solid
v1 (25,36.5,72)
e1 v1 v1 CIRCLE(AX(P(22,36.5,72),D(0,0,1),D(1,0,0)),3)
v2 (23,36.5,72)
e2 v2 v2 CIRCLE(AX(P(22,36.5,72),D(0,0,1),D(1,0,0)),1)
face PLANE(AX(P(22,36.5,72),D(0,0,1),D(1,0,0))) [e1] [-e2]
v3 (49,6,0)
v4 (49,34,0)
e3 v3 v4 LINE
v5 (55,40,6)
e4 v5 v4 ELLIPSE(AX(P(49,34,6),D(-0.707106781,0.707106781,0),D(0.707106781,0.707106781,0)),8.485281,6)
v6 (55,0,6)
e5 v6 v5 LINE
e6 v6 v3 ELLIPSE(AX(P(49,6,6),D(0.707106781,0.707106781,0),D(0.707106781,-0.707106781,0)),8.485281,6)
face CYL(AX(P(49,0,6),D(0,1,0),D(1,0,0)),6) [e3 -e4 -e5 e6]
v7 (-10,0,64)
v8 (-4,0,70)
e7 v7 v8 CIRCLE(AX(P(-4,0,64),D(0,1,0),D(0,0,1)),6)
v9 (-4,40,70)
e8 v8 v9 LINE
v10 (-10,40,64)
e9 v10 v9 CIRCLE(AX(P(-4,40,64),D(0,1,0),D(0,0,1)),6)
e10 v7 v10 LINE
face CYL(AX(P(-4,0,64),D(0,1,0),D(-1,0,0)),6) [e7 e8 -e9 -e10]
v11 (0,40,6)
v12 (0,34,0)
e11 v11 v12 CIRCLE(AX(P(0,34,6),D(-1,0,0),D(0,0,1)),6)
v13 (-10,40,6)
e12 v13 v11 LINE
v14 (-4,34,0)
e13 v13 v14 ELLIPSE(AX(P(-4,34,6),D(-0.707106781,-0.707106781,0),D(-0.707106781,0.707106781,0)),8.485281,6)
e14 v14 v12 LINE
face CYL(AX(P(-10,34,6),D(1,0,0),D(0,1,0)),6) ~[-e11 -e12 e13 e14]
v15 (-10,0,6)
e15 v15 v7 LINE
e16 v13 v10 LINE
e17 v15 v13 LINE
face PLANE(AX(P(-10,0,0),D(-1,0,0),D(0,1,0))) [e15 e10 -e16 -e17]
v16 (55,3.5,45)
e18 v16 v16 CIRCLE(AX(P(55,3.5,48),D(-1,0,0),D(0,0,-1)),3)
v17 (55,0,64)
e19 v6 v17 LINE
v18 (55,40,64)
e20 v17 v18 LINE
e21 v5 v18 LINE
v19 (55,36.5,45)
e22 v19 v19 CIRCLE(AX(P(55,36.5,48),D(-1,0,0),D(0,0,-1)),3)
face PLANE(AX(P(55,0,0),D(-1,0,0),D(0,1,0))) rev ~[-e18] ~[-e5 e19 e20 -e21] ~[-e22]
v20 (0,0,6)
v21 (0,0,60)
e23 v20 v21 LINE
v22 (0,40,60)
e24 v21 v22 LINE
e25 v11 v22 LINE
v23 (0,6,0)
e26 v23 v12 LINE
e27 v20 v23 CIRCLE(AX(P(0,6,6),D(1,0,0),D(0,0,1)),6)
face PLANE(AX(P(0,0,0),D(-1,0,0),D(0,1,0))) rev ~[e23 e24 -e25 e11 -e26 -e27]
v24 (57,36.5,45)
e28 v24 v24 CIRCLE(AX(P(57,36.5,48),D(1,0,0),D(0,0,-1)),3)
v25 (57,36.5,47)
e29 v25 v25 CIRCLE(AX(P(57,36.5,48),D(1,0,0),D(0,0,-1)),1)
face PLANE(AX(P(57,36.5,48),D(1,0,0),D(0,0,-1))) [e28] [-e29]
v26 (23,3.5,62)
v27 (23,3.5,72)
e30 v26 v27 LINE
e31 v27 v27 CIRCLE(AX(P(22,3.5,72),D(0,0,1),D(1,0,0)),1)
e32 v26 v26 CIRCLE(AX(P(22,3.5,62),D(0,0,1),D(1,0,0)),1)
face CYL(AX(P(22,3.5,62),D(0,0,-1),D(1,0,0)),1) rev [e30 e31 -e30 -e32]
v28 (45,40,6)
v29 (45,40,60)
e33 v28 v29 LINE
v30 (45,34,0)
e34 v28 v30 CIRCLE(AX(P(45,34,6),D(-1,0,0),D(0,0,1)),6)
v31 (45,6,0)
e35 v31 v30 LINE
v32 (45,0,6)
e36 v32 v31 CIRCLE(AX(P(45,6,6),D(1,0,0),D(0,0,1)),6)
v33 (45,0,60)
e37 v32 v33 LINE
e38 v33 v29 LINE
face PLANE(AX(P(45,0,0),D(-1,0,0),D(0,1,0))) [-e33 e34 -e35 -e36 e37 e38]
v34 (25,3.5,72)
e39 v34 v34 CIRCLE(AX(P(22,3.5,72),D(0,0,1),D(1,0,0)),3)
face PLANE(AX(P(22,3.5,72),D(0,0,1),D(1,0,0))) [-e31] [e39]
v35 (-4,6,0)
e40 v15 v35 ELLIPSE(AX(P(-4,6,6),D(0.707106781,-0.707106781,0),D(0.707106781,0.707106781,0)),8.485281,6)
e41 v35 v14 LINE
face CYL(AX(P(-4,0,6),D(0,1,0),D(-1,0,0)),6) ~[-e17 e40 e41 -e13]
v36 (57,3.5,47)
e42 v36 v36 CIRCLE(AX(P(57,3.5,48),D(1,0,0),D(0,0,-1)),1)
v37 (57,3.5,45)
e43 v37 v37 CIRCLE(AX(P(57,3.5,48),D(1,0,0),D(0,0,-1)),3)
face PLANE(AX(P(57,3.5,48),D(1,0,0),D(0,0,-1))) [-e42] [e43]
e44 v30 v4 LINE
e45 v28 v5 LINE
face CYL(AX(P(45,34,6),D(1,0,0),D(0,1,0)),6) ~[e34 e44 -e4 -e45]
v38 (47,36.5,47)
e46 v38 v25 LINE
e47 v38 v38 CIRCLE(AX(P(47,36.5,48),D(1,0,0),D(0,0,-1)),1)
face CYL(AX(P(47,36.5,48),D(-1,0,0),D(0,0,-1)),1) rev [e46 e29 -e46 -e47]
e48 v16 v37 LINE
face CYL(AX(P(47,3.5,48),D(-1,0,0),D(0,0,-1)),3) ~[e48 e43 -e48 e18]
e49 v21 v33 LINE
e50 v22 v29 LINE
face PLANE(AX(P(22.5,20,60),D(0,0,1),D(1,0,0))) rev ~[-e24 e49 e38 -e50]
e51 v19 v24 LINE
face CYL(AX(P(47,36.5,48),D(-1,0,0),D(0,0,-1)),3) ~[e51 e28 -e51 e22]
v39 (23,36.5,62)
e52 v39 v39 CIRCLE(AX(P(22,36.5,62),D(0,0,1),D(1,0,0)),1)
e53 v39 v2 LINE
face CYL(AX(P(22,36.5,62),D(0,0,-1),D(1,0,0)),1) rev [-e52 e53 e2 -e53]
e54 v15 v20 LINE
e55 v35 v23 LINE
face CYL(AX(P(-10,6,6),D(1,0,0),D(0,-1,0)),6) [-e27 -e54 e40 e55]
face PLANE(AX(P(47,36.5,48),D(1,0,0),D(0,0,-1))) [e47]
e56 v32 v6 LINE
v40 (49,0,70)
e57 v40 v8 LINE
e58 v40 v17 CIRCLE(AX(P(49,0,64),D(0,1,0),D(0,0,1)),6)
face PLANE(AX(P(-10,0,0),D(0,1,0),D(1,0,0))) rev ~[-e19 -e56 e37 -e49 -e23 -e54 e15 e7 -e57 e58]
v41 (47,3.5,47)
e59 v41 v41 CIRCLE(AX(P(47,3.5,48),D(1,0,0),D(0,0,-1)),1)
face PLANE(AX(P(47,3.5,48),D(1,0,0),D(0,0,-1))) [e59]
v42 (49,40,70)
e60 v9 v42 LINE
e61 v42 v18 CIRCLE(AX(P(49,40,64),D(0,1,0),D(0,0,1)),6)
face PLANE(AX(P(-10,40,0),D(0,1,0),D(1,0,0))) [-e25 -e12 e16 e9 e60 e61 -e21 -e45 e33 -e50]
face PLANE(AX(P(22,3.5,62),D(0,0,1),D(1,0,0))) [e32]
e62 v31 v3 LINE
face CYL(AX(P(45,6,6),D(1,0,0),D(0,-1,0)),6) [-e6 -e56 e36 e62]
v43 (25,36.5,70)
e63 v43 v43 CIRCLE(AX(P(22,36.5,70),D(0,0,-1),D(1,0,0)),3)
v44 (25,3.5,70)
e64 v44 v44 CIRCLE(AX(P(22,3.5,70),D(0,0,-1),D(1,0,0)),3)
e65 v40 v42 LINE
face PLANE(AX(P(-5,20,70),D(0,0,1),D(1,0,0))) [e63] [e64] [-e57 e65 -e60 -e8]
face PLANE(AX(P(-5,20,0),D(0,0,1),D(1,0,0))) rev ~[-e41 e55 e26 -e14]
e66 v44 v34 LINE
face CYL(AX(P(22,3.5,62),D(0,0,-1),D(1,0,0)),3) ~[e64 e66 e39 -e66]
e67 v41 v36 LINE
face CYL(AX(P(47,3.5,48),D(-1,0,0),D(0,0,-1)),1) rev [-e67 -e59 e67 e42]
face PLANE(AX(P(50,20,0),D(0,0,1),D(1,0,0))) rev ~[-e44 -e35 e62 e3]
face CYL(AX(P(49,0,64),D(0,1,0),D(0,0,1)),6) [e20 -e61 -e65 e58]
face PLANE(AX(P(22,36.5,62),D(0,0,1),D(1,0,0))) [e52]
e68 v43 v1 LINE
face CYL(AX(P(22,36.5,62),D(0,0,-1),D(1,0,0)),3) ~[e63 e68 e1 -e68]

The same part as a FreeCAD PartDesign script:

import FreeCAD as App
import Part
import Sketcher
Q = App.Units.Quantity


def edges_at(feature, points):
    """Names of the edges that pass closest to the given points."""
    edges = feature.Shape.Edges
    near = lambda p: min(range(len(edges)), key=lambda i: edges[i].distToShape(Part.Vertex(*p))[0])
    return sorted({f"Edge{near(p) + 1}" for p in points})


def add_polygon(sketch, points):
    """Adds a closed chain of lines whose ends are joined by coincident constraints."""
    first, n = sketch.GeometryCount, len(points)
    for a, b in zip(points, points[1:] + points[:1]):
        sketch.addGeometry(Part.LineSegment(App.Vector(*a, 0), App.Vector(*b, 0)), False)
    for i in range(n):
        sketch.addConstraint(Sketcher.Constraint("Coincident", first + i, 2, first + (i + 1) % n, 1))

doc = App.newDocument("Part")
body = doc.addObject("PartDesign::Body", "Body")

sketch1 = doc.addObject("Sketcher::SketchObject", "Sketch")
body.addObject(sketch1)
sketch1.AttachmentSupport = (doc.YZ_Plane, [""])
sketch1.MapMode = "FlatFace"
sketch1.AttachmentOffset = App.Placement(App.Vector(0, 0, 47), App.Rotation())
sketch1.addGeometry(Part.Circle(App.Vector(36.5, 48, 0), App.Vector(0, 0, 1), 1), False)
sketch1.addConstraint([
    Sketcher.Constraint("Diameter", 0, Q("2 mm")),
    Sketcher.Constraint("DistanceY", -1, 1, 0, 3, Q("48 mm")),
    Sketcher.Constraint("DistanceX", -1, 1, 0, 3, Q("36.5 mm")),
])
pad1 = doc.addObject("PartDesign::Pad", "Pad")
body.addObject(pad1)
pad1.Profile = sketch1
pad1.Length = 10
body2 = doc.addObject("PartDesign::Body", "Body001")

sketch2 = doc.addObject("Sketcher::SketchObject", "Sketch001")
body2.addObject(sketch2)
sketch2.AttachmentSupport = (doc.getObject("XY_Plane001"), [""])
sketch2.MapMode = "FlatFace"
sketch2.AttachmentOffset = App.Placement(App.Vector(0, 0, 62), App.Rotation())
sketch2.addGeometry(Part.Circle(App.Vector(22, 36.5, 0), App.Vector(0, 0, 1), 1), False)
sketch2.addConstraint([
    Sketcher.Constraint("Diameter", 0, Q("2 mm")),
    Sketcher.Constraint("DistanceX", -1, 1, 0, 3, Q("22 mm")),
    Sketcher.Constraint("DistanceY", -1, 1, 0, 3, Q("36.5 mm")),
])
pad2 = doc.addObject("PartDesign::Pad", "Pad001")
body2.addObject(pad2)
pad2.Profile = sketch2
pad2.Length = 10
body3 = doc.addObject("PartDesign::Body", "Body002")

sketch3 = doc.addObject("Sketcher::SketchObject", "Sketch002")
body3.addObject(sketch3)
sketch3.AttachmentSupport = (doc.getObject("XY_Plane002"), [""])
sketch3.MapMode = "FlatFace"
sketch3.AttachmentOffset = App.Placement(App.Vector(0, 0, 62), App.Rotation())
sketch3.addGeometry(Part.Circle(App.Vector(22, 3.5, 0), App.Vector(0, 0, 1), 1), False)
sketch3.addConstraint([
    Sketcher.Constraint("Diameter", 0, Q("2 mm")),
    Sketcher.Constraint("DistanceX", -1, 1, 0, 3, Q("22 mm")),
    Sketcher.Constraint("DistanceY", -1, 1, 0, 3, Q("3.5 mm")),
])
pad3 = doc.addObject("PartDesign::Pad", "Pad002")
body3.addObject(pad3)
pad3.Profile = sketch3
pad3.Length = 10
body4 = doc.addObject("PartDesign::Body", "Body003")

sketch4 = doc.addObject("Sketcher::SketchObject", "Sketch003")
body4.addObject(sketch4)
sketch4.AttachmentSupport = (doc.getObject("YZ_Plane003"), [""])
sketch4.MapMode = "FlatFace"
sketch4.AttachmentOffset = App.Placement(App.Vector(0, 0, 47), App.Rotation())
sketch4.addGeometry(Part.Circle(App.Vector(3.5, 48, 0), App.Vector(0, 0, 1), 1), False)
sketch4.addConstraint([
    Sketcher.Constraint("Diameter", 0, Q("2 mm")),
    Sketcher.Constraint("DistanceY", -1, 1, 0, 3, Q("48 mm")),
    Sketcher.Constraint("DistanceX", -1, 1, 0, 3, Q("3.5 mm")),
])
pad4 = doc.addObject("PartDesign::Pad", "Pad003")
body4.addObject(pad4)
pad4.Profile = sketch4
pad4.Length = 10
body5 = doc.addObject("PartDesign::Body", "Body004")

sketch5 = doc.addObject("Sketcher::SketchObject", "Sketch004")
body5.addObject(sketch5)
sketch5.AttachmentSupport = (doc.getObject("XY_Plane004"), [""])
sketch5.MapMode = "FlatFace"
add_polygon(sketch5, [(45, 40), (45, 0), (55, 0), (55, 40)])
sketch5.addConstraint([
    Sketcher.Constraint("Vertical", 0),
    Sketcher.Constraint("Horizontal", 1),
    Sketcher.Constraint("Vertical", 2),
    Sketcher.Constraint("Horizontal", 3),
    Sketcher.Constraint("PointOnObject", 0, 2, -1),
    Sketcher.Constraint("DistanceX", 1, 1, 1, 2, Q("10 mm")),
    Sketcher.Constraint("DistanceY", 0, 2, 0, 1, Q("40 mm")),
    Sketcher.Constraint("DistanceX", -1, 1, 0, 2, Q("45 mm")),
])
pad5 = doc.addObject("PartDesign::Pad", "Pad004")
body5.addObject(pad5)
pad5.Profile = sketch5
pad5.Length = 70
body6 = doc.addObject("PartDesign::Body", "Body005")

sketch6 = doc.addObject("Sketcher::SketchObject", "Sketch005")
body6.addObject(sketch6)
sketch6.AttachmentSupport = (doc.getObject("XY_Plane005"), [""])
sketch6.MapMode = "FlatFace"
sketch6.AttachmentOffset = App.Placement(App.Vector(0, 0, 62), App.Rotation())
sketch6.addGeometry(Part.Circle(App.Vector(22, 3.5, 0), App.Vector(0, 0, 1), 3), False)
sketch6.addConstraint([
    Sketcher.Constraint("Diameter", 0, Q("6 mm")),
    Sketcher.Constraint("DistanceX", -1, 1, 0, 3, Q("22 mm")),
    Sketcher.Constraint("DistanceY", -1, 1, 0, 3, Q("3.5 mm")),
])
pad6 = doc.addObject("PartDesign::Pad", "Pad005")
body6.addObject(pad6)
pad6.Profile = sketch6
pad6.Length = 10
body7 = doc.addObject("PartDesign::Body", "Body006")

sketch7 = doc.addObject("Sketcher::SketchObject", "Sketch006")
body7.addObject(sketch7)
sketch7.AttachmentSupport = (doc.getObject("XY_Plane006"), [""])
sketch7.MapMode = "FlatFace"
sketch7.AttachmentOffset = App.Placement(App.Vector(0, 0, 62), App.Rotation())
sketch7.addGeometry(Part.Circle(App.Vector(22, 36.5, 0), App.Vector(0, 0, 1), 3), False)
sketch7.addConstraint([
    Sketcher.Constraint("Diameter", 0, Q("6 mm")),
    Sketcher.Constraint("DistanceX", -1, 1, 0, 3, Q("22 mm")),
    Sketcher.Constraint("DistanceY", -1, 1, 0, 3, Q("36.5 mm")),
])
pad7 = doc.addObject("PartDesign::Pad", "Pad006")
body7.addObject(pad7)
pad7.Profile = sketch7
pad7.Length = 10
body8 = doc.addObject("PartDesign::Body", "Body007")

sketch8 = doc.addObject("Sketcher::SketchObject", "Sketch007")
body8.addObject(sketch8)
sketch8.AttachmentSupport = (doc.getObject("YZ_Plane007"), [""])
sketch8.MapMode = "FlatFace"
sketch8.AttachmentOffset = App.Placement(App.Vector(0, 0, 47), App.Rotation())
sketch8.addGeometry(Part.Circle(App.Vector(36.5, 48, 0), App.Vector(0, 0, 1), 3), False)
sketch8.addConstraint([
    Sketcher.Constraint("Diameter", 0, Q("6 mm")),
    Sketcher.Constraint("DistanceY", -1, 1, 0, 3, Q("48 mm")),
    Sketcher.Constraint("DistanceX", -1, 1, 0, 3, Q("36.5 mm")),
])
pad8 = doc.addObject("PartDesign::Pad", "Pad007")
body8.addObject(pad8)
pad8.Profile = sketch8
pad8.Length = 10
body9 = doc.addObject("PartDesign::Body", "Body008")

sketch9 = doc.addObject("Sketcher::SketchObject", "Sketch008")
body9.addObject(sketch9)
sketch9.AttachmentSupport = (doc.getObject("YZ_Plane008"), [""])
sketch9.MapMode = "FlatFace"
sketch9.AttachmentOffset = App.Placement(App.Vector(0, 0, 47), App.Rotation())
sketch9.addGeometry(Part.Circle(App.Vector(3.5, 48, 0), App.Vector(0, 0, 1), 3), False)
sketch9.addConstraint([
    Sketcher.Constraint("Diameter", 0, Q("6 mm")),
    Sketcher.Constraint("DistanceY", -1, 1, 0, 3, Q("48 mm")),
    Sketcher.Constraint("DistanceX", -1, 1, 0, 3, Q("3.5 mm")),
])
pad9 = doc.addObject("PartDesign::Pad", "Pad008")
body9.addObject(pad9)
pad9.Profile = sketch9
pad9.Length = 10
body10 = doc.addObject("PartDesign::Body", "Body009")

sketch10 = doc.addObject("Sketcher::SketchObject", "Sketch009")
body10.addObject(sketch10)
sketch10.AttachmentSupport = (doc.getObject("XY_Plane009"), [""])
sketch10.MapMode = "FlatFace"
add_polygon(sketch10, [(-10, 40), (-10, 0), (0, 0), (0, 40)])
sketch10.addConstraint([
    Sketcher.Constraint("Vertical", 0),
    Sketcher.Constraint("Horizontal", 1),
    Sketcher.Constraint("Vertical", 2),
    Sketcher.Constraint("Horizontal", 3),
    Sketcher.Constraint("Coincident", 1, 2, -1, 1),
    Sketcher.Constraint("DistanceX", 1, 1, 1, 2, Q("10 mm")),
    Sketcher.Constraint("DistanceY", 0, 2, 0, 1, Q("40 mm")),
])
pad10 = doc.addObject("PartDesign::Pad", "Pad009")
body10.addObject(pad10)
pad10.Profile = sketch10
pad10.Length = 70
body11 = doc.addObject("PartDesign::Body", "Body010")

sketch11 = doc.addObject("Sketcher::SketchObject", "Sketch010")
body11.addObject(sketch11)
sketch11.AttachmentSupport = (doc.getObject("XY_Plane010"), [""])
sketch11.MapMode = "FlatFace"
sketch11.AttachmentOffset = App.Placement(App.Vector(0, 0, 60), App.Rotation())
add_polygon(sketch11, [(0, 40), (0, 0), (45, 0), (45, 40)])
sketch11.addConstraint([
    Sketcher.Constraint("Vertical", 0),
    Sketcher.Constraint("Horizontal", 1),
    Sketcher.Constraint("Vertical", 2),
    Sketcher.Constraint("Horizontal", 3),
    Sketcher.Constraint("Coincident", 0, 2, -1, 1),
    Sketcher.Constraint("DistanceX", 1, 1, 1, 2, Q("45 mm")),
    Sketcher.Constraint("DistanceY", 0, 2, 0, 1, Q("40 mm")),
])
pad11 = doc.addObject("PartDesign::Pad", "Pad010")
body11.addObject(pad11)
pad11.Profile = sketch11
pad11.Length = 10
doc.recompute()

boolean = doc.addObject("PartDesign::Boolean", "Boolean")
body11.addObject(boolean)
boolean.Type = "Fuse"
boolean.addObjects([body5])
doc.recompute()

boolean2 = doc.addObject("PartDesign::Boolean", "Boolean001")
body11.addObject(boolean2)
boolean2.Type = "Fuse"
boolean2.addObjects([body6])
doc.recompute()

boolean3 = doc.addObject("PartDesign::Boolean", "Boolean002")
body11.addObject(boolean3)
boolean3.Type = "Fuse"
boolean3.addObjects([body7])
doc.recompute()

boolean4 = doc.addObject("PartDesign::Boolean", "Boolean003")
body11.addObject(boolean4)
boolean4.Type = "Fuse"
boolean4.addObjects([body8])
doc.recompute()

boolean5 = doc.addObject("PartDesign::Boolean", "Boolean004")
body11.addObject(boolean5)
boolean5.Type = "Fuse"
boolean5.addObjects([body9])
doc.recompute()

boolean6 = doc.addObject("PartDesign::Boolean", "Boolean005")
body11.addObject(boolean6)
boolean6.Type = "Fuse"
boolean6.addObjects([body10])
doc.recompute()

boolean7 = doc.addObject("PartDesign::Boolean", "Boolean006")
body11.addObject(boolean7)
boolean7.Type = "Cut"
boolean7.addObjects([body4])
doc.recompute()

boolean8 = doc.addObject("PartDesign::Boolean", "Boolean007")
body11.addObject(boolean8)
boolean8.Type = "Cut"
boolean8.addObjects([body3])
doc.recompute()

boolean9 = doc.addObject("PartDesign::Boolean", "Boolean008")
body11.addObject(boolean9)
boolean9.Type = "Cut"
boolean9.addObjects([body2])
doc.recompute()

boolean10 = doc.addObject("PartDesign::Boolean", "Boolean009")
body11.addObject(boolean10)
boolean10.Type = "Cut"
boolean10.addObjects([body])
doc.recompute()

fillet = doc.addObject("PartDesign::Fillet", "Fillet")
body11.addObject(fillet)
fillet.Base = (boolean10, edges_at(boolean10, [
    (50, 0, 0),
    (-5, 0, 0),
    (50, 40, 0),
    (55, 20, 0),
    (55, 20, 70),
    (-10, 20, 70),
    (-10, 20, 0),
    (-5, 40, 0),
]))
fillet.Radius = 6

doc.recompute()
